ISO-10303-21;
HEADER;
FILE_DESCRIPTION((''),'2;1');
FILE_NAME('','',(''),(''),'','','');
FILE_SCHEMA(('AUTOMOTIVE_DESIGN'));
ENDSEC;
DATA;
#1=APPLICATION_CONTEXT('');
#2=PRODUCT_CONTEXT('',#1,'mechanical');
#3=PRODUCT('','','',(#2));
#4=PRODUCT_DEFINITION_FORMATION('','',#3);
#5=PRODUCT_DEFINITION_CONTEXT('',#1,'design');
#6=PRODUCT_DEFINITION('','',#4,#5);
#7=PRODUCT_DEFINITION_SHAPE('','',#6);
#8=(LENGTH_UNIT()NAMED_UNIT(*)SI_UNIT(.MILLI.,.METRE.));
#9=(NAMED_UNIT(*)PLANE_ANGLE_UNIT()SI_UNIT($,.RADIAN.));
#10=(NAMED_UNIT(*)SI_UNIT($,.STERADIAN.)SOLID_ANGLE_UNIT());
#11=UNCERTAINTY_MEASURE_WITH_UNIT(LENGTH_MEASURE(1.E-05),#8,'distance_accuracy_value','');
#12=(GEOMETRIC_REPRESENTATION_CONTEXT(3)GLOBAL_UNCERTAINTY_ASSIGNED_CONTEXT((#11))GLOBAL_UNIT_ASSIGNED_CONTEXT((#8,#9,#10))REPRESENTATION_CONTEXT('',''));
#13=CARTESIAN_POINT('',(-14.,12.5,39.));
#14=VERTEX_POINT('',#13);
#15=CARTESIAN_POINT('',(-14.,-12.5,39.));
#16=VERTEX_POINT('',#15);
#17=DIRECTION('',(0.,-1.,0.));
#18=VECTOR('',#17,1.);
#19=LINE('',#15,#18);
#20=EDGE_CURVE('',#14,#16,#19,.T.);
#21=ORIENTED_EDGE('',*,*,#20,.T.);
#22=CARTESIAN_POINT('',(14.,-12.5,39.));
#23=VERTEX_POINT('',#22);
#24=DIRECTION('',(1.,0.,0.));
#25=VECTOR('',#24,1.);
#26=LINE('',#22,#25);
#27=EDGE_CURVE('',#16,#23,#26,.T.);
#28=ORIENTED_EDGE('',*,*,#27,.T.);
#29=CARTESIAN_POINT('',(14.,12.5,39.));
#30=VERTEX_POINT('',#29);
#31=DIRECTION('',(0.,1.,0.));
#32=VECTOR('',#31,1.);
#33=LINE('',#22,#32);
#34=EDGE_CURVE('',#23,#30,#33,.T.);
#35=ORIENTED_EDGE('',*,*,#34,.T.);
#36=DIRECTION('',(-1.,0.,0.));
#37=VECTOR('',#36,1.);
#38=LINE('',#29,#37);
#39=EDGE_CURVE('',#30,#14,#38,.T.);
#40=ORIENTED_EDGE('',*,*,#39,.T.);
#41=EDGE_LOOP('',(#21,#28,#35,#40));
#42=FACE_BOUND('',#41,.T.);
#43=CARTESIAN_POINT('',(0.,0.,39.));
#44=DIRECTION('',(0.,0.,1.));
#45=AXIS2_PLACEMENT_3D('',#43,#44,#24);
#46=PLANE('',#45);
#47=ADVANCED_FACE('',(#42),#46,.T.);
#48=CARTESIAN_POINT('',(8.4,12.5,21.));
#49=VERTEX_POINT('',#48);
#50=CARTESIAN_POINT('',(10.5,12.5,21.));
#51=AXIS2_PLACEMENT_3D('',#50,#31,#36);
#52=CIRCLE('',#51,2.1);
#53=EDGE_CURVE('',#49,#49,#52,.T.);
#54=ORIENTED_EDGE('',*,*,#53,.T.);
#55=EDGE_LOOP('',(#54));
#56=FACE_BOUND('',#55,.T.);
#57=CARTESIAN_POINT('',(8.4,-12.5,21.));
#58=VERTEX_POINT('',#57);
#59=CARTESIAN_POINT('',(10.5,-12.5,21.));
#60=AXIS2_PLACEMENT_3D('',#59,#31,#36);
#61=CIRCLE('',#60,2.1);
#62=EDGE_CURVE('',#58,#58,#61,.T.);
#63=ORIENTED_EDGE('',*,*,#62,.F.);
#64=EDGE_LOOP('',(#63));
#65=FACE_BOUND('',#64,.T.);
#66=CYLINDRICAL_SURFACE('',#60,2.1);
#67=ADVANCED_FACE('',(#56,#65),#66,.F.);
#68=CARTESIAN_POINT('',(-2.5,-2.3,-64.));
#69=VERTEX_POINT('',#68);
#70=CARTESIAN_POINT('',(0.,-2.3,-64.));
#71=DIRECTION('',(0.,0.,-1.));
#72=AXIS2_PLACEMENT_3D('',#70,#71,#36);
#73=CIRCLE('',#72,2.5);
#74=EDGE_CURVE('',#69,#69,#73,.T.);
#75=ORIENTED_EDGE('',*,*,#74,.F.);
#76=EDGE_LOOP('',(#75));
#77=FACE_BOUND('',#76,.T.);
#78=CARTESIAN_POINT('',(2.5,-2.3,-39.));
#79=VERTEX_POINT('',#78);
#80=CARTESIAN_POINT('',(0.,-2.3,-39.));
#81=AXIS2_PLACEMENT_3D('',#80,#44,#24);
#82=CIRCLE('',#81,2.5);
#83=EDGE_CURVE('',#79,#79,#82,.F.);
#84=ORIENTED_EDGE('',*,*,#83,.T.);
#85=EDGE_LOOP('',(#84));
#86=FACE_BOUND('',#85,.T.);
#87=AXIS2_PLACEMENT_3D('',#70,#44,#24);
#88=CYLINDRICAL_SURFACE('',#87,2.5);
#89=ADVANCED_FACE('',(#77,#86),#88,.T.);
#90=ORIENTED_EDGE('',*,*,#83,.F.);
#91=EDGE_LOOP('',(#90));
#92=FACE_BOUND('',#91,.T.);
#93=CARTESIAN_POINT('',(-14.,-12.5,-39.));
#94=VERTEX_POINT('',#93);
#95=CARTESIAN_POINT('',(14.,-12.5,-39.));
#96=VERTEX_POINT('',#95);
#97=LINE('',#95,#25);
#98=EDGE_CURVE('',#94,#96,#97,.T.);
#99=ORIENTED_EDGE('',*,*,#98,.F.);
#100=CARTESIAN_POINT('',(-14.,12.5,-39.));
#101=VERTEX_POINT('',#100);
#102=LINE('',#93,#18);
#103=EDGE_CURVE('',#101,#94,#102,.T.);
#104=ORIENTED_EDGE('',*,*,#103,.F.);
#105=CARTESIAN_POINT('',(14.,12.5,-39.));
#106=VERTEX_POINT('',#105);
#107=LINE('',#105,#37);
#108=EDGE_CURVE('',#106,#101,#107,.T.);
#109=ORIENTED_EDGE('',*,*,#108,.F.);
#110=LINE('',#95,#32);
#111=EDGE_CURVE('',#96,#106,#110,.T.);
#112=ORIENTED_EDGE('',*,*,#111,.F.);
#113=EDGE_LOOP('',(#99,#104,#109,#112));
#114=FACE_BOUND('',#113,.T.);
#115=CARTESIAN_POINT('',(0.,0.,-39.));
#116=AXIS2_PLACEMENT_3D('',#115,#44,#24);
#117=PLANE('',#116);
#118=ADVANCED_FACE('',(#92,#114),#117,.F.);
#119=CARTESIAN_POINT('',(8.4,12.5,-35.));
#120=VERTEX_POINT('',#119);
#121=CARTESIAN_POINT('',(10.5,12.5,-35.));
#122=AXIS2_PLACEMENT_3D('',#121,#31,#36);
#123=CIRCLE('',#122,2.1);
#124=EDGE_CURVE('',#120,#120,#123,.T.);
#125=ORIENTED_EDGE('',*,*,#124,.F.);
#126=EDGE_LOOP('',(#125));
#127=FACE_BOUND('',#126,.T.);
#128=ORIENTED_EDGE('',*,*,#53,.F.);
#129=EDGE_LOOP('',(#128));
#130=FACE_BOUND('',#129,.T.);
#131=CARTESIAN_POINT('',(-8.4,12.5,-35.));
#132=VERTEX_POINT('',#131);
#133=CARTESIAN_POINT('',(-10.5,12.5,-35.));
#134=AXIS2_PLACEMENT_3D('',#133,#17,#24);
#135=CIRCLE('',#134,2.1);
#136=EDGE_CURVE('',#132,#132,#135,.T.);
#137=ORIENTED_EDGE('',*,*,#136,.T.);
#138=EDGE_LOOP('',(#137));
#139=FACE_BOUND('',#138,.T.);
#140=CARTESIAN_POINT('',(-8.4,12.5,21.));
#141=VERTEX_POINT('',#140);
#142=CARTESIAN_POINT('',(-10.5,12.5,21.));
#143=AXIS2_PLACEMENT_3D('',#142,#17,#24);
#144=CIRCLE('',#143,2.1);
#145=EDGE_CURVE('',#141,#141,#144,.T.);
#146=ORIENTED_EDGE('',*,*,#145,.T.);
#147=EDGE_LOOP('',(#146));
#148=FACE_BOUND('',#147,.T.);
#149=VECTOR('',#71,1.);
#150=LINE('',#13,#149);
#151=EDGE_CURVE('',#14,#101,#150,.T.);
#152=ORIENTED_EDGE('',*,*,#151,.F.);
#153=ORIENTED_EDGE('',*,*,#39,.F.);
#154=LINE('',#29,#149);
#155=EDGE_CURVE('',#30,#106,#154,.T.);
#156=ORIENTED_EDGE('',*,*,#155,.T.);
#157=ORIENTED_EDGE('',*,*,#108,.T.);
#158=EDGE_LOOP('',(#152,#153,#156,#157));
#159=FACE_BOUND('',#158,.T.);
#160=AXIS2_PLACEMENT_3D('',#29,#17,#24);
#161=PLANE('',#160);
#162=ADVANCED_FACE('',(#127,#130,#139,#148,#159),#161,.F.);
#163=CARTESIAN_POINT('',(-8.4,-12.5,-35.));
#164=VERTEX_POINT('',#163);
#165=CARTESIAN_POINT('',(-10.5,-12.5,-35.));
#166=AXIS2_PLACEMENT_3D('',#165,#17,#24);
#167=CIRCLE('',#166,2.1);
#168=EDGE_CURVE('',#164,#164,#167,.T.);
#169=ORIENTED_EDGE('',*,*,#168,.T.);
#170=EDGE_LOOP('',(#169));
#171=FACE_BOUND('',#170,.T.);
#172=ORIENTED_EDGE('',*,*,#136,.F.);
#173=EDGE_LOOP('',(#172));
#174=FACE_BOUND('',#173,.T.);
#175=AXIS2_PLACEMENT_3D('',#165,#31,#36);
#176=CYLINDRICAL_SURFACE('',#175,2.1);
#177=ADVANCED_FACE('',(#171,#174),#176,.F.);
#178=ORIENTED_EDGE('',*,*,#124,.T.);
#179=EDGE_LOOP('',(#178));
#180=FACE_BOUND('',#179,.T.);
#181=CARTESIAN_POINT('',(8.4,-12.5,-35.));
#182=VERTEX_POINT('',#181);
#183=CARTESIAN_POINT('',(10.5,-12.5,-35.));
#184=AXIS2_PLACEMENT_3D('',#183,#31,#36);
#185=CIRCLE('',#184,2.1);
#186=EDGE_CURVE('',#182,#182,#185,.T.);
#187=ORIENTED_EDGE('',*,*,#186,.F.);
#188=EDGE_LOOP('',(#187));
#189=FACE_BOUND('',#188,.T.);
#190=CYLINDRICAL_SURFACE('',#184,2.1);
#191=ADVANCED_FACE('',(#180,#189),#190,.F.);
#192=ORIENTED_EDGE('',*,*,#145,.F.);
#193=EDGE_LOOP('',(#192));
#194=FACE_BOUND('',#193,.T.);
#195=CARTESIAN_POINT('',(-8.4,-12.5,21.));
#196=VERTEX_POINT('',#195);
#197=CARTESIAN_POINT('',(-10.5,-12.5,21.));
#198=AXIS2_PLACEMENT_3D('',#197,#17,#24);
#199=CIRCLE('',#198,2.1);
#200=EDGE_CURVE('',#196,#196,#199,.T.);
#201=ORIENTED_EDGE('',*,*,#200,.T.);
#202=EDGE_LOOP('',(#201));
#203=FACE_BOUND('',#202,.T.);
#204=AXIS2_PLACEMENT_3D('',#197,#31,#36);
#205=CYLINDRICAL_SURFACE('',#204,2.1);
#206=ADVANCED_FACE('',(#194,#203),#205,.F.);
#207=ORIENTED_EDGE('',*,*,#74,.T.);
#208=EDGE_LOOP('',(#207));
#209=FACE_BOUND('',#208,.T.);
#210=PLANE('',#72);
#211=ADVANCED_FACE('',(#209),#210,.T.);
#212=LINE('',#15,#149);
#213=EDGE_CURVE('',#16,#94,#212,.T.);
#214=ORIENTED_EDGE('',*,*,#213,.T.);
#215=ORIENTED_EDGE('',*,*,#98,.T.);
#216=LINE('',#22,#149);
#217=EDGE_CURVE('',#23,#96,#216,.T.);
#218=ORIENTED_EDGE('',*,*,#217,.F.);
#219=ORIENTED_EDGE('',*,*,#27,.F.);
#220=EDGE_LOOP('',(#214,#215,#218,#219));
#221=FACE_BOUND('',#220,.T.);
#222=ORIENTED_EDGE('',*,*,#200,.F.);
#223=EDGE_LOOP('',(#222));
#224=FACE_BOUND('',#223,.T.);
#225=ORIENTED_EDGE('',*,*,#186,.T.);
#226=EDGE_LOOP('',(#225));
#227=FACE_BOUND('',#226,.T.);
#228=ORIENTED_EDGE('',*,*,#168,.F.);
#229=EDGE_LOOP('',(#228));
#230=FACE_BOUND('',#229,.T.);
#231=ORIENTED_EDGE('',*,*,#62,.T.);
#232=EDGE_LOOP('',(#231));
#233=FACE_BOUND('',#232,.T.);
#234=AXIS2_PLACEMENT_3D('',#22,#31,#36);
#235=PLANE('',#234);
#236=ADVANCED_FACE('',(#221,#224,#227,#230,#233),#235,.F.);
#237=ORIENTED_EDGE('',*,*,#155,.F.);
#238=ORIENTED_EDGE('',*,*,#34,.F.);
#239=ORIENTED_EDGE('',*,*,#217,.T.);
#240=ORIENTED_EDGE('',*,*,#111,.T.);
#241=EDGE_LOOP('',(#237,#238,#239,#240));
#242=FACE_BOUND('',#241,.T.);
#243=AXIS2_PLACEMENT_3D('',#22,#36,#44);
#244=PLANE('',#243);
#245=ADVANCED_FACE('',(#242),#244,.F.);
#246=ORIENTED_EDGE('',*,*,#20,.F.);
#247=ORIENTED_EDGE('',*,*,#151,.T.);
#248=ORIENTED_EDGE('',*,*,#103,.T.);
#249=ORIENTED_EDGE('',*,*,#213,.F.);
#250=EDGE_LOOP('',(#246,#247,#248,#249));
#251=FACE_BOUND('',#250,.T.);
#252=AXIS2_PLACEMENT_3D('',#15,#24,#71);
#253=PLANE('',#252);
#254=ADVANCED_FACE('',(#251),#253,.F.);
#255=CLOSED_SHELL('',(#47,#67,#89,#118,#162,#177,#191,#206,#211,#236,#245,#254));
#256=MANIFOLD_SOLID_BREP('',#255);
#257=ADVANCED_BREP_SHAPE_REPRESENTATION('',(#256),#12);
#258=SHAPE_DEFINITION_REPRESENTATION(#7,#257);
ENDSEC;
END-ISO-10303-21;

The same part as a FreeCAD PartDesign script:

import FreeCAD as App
import Part
import Sketcher
from FreeCAD import Vector
Q = App.Units.Quantity

doc = App.newDocument("Part")
body = doc.addObject("PartDesign::Body", "Body")

# Sketch on XY plane
sketch1 = doc.addObject("Sketcher::SketchObject", "Sketch")
body.addObject(sketch1)
sketch1.AttachmentSupport = (doc.XY_Plane, [""])
sketch1.MapMode = "FlatFace"
sketch1.addGeometry(Part.LineSegment(Vector(-14, 12, 0), Vector(-14, -12, 0)), False)
sketch1.addGeometry(Part.LineSegment(Vector(-14, -12, 0), Vector(14, -12, 0)), False)
sketch1.addGeometry(Part.LineSegment(Vector(14, -12, 0), Vector(14, 12, 0)), False)
sketch1.addGeometry(Part.LineSegment(Vector(14, 12, 0), Vector(-14, 12, 0)), False)
sketch1.addConstraint(Sketcher.Constraint("Coincident", 0, 2, 1, 1))
sketch1.addConstraint(Sketcher.Constraint("Coincident", 1, 2, 2, 1))
sketch1.addConstraint(Sketcher.Constraint("Coincident", 2, 2, 3, 1))
sketch1.addConstraint(Sketcher.Constraint("Coincident", 3, 2, 0, 1))
sketch1.addConstraint(Sketcher.Constraint("Vertical", 0))
sketch1.addConstraint(Sketcher.Constraint("Horizontal", 1))
sketch1.addConstraint(Sketcher.Constraint("Vertical", 2))
sketch1.addConstraint(Sketcher.Constraint("Horizontal", 3))
sketch1.addConstraint(Sketcher.Constraint("Symmetric", 0, 2, 2, 2, -1, 1))
sketch1.addConstraint(Sketcher.Constraint("DistanceX", 1, 1, 1, 2, Q("28 mm")))
sketch1.addConstraint(Sketcher.Constraint("DistanceY", 0, 2, 0, 1, Q("25 mm")))
pad1 = doc.addObject("PartDesign::Pad", "Pad")
body.addObject(pad1)
pad1.Profile = sketch1
pad1.Length = 78
pad1.Midplane = True

# Sketch on XZ plane
sketch2 = doc.addObject("Sketcher::SketchObject", "Sketch001")
body.addObject(sketch2)
sketch2.AttachmentSupport = (doc.XZ_Plane, [""])
sketch2.MapMode = "FlatFace"
sketch2.AttachmentOffset = App.Placement(Vector(0, 0, -12.5), App.Rotation())
sketch2.addGeometry(Part.Circle(Vector(10.5, -35, 0), Vector(0, 0, 1), 2.1), False)
sketch2.addGeometry(Part.Circle(Vector(10.5, 21, 0), Vector(0, 0, 1), 2.1), False)
sketch2.addConstraint(Sketcher.Constraint("Equal", 0, 1))
sketch2.addConstraint(Sketcher.Constraint("Vertical", 0, 3, 1, 3))
sketch2.addConstraint(Sketcher.Constraint("Diameter", 0, Q("4.2 mm")))
sketch2.addConstraint(Sketcher.Constraint("DistanceY", 0, 3, -1, 1, Q("35 mm")))
sketch2.addConstraint(Sketcher.Constraint("DistanceY", -1, 1, 1, 3, Q("21 mm")))
sketch2.addConstraint(Sketcher.Constraint("DistanceX", -1, 1, 0, 3, Q("10.5 mm")))
pocket1 = doc.addObject("PartDesign::Pocket", "Pocket")
body.addObject(pocket1)
pocket1.Profile = sketch2
pocket1.Type = "ThroughAll"
pocket1.Reversed = True
doc.recompute()

mirrored = doc.addObject("PartDesign::Mirrored", "Mirrored")
body.addObject(mirrored)
mirrored.Originals = [pocket1]
mirrored.MirrorPlane = (doc.YZ_Plane, [""])
body.Tip = mirrored

# Sketch on XY plane
sketch3 = doc.addObject("Sketcher::SketchObject", "Sketch002")
body.addObject(sketch3)
sketch3.AttachmentSupport = (doc.XY_Plane, [""])
sketch3.MapMode = "FlatFace"
sketch3.AttachmentOffset = App.Placement(Vector(0, 0, -39), App.Rotation())
sketch3.addGeometry(Part.Circle(Vector(0, -2.3, 0), Vector(0, 0, 1), 2.5), False)
sketch3.addConstraint(Sketcher.Constraint("PointOnObject", 0, 3, -2))
sketch3.addConstraint(Sketcher.Constraint("Diameter", 0, Q("5 mm")))
sketch3.addConstraint(Sketcher.Constraint("DistanceY", 0, 3, -1, 1, Q("2.3 mm")))
pad2 = doc.addObject("PartDesign::Pad", "Pad001")
body.addObject(pad2)
pad2.Profile = sketch3
pad2.Length = 25
pad2.Reversed = True

doc.recompute()
